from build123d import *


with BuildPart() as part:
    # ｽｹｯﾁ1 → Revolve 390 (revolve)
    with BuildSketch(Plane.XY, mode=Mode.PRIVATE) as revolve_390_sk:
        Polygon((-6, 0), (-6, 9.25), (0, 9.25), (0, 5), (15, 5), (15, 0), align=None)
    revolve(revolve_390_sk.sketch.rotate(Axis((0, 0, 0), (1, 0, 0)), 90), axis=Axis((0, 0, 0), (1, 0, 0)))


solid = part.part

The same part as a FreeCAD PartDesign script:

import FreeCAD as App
import Part
import Sketcher

V = App.Vector

doc = App.newDocument("Part")
params = doc.addObject("Spreadsheet::Sheet", "Params")
for row, (alias, value) in enumerate([
    ("sketch1_width", "21 mm"),
    ("sketch1_width2", "15 mm"),
    ("sketch1_height", "5 mm"),
    ("sketch1_height2", "9.25 mm"),
    ("revolution_angle", "360 deg"),
], start=1):
    params.set(f"A{row}", alias)
    params.set(f"B{row}", "=" + value)
    params.setAlias(f"B{row}", alias)

body = doc.addObject("PartDesign::Body", "Body")

# Sketch on XY plane
sketch1 = body.newObject("Sketcher::SketchObject", "Sketch")
sketch1.AttachmentSupport = (doc.getObject("XY_Plane"), [""])
sketch1.MapMode = "FlatFace"
sketch1.addGeometry(Part.LineSegment(V(-6, 9.2, 0), V(-6, 0, 0)), False)
sketch1.addGeometry(Part.LineSegment(V(-6, 0, 0), V(15, 0, 0)), False)
sketch1.addGeometry(Part.LineSegment(V(15, 0, 0), V(15, 5, 0)), False)
sketch1.addGeometry(Part.LineSegment(V(15, 5, 0), V(0, 5, 0)), False)
sketch1.addGeometry(Part.LineSegment(V(0, 5, 0), V(0, 9.2, 0)), False)
sketch1.addGeometry(Part.LineSegment(V(0, 9.2, 0), V(-6, 9.2, 0)), False)
sketch1.addConstraint(Sketcher.Constraint("Coincident", 0, 2, 1, 1))
sketch1.addConstraint(Sketcher.Constraint("Coincident", 1, 2, 2, 1))
sketch1.addConstraint(Sketcher.Constraint("Coincident", 2, 2, 3, 1))
sketch1.addConstraint(Sketcher.Constraint("Coincident", 3, 2, 4, 1))
sketch1.addConstraint(Sketcher.Constraint("Coincident", 4, 2, 5, 1))
sketch1.addConstraint(Sketcher.Constraint("Coincident", 5, 2, 0, 1))
sketch1.addConstraint(Sketcher.Constraint("Vertical", 0))
sketch1.addConstraint(Sketcher.Constraint("Horizontal", 1))
sketch1.addConstraint(Sketcher.Constraint("Vertical", 2))
sketch1.addConstraint(Sketcher.Constraint("Horizontal", 3))
sketch1.addConstraint(Sketcher.Constraint("Vertical", 4))
sketch1.addConstraint(Sketcher.Constraint("Horizontal", 5))
sketch1.addConstraint(Sketcher.Constraint("PointOnObject", 0, 2, -1))
sketch1.addConstraint(Sketcher.Constraint("PointOnObject", 3, 2, -2))
sketch1.addConstraint(Sketcher.Constraint("DistanceX", 1, 1, 1, 2, 21.0))
sketch1.addConstraint(Sketcher.Constraint("DistanceX", 3, 2, 3, 1, 15.0))
sketch1.addConstraint(Sketcher.Constraint("DistanceY", 2, 1, 2, 2, 5.0))
sketch1.addConstraint(Sketcher.Constraint("DistanceY", 0, 2, 0, 1, 9.25))
sketch1.setExpression("Constraints[14]", "Params.sketch1_width")
sketch1.setExpression("Constraints[15]", "Params.sketch1_width2")
sketch1.setExpression("Constraints[16]", "Params.sketch1_height")
sketch1.setExpression("Constraints[17]", "Params.sketch1_height2")
revolution = body.newObject("PartDesign::Revolution", "Revolution")
revolution.Profile = sketch1
revolution.ReferenceAxis = (sketch1, ["H_Axis"])
revolution.setExpression("Angle", "Params.revolution_angle")

doc.recompute()
